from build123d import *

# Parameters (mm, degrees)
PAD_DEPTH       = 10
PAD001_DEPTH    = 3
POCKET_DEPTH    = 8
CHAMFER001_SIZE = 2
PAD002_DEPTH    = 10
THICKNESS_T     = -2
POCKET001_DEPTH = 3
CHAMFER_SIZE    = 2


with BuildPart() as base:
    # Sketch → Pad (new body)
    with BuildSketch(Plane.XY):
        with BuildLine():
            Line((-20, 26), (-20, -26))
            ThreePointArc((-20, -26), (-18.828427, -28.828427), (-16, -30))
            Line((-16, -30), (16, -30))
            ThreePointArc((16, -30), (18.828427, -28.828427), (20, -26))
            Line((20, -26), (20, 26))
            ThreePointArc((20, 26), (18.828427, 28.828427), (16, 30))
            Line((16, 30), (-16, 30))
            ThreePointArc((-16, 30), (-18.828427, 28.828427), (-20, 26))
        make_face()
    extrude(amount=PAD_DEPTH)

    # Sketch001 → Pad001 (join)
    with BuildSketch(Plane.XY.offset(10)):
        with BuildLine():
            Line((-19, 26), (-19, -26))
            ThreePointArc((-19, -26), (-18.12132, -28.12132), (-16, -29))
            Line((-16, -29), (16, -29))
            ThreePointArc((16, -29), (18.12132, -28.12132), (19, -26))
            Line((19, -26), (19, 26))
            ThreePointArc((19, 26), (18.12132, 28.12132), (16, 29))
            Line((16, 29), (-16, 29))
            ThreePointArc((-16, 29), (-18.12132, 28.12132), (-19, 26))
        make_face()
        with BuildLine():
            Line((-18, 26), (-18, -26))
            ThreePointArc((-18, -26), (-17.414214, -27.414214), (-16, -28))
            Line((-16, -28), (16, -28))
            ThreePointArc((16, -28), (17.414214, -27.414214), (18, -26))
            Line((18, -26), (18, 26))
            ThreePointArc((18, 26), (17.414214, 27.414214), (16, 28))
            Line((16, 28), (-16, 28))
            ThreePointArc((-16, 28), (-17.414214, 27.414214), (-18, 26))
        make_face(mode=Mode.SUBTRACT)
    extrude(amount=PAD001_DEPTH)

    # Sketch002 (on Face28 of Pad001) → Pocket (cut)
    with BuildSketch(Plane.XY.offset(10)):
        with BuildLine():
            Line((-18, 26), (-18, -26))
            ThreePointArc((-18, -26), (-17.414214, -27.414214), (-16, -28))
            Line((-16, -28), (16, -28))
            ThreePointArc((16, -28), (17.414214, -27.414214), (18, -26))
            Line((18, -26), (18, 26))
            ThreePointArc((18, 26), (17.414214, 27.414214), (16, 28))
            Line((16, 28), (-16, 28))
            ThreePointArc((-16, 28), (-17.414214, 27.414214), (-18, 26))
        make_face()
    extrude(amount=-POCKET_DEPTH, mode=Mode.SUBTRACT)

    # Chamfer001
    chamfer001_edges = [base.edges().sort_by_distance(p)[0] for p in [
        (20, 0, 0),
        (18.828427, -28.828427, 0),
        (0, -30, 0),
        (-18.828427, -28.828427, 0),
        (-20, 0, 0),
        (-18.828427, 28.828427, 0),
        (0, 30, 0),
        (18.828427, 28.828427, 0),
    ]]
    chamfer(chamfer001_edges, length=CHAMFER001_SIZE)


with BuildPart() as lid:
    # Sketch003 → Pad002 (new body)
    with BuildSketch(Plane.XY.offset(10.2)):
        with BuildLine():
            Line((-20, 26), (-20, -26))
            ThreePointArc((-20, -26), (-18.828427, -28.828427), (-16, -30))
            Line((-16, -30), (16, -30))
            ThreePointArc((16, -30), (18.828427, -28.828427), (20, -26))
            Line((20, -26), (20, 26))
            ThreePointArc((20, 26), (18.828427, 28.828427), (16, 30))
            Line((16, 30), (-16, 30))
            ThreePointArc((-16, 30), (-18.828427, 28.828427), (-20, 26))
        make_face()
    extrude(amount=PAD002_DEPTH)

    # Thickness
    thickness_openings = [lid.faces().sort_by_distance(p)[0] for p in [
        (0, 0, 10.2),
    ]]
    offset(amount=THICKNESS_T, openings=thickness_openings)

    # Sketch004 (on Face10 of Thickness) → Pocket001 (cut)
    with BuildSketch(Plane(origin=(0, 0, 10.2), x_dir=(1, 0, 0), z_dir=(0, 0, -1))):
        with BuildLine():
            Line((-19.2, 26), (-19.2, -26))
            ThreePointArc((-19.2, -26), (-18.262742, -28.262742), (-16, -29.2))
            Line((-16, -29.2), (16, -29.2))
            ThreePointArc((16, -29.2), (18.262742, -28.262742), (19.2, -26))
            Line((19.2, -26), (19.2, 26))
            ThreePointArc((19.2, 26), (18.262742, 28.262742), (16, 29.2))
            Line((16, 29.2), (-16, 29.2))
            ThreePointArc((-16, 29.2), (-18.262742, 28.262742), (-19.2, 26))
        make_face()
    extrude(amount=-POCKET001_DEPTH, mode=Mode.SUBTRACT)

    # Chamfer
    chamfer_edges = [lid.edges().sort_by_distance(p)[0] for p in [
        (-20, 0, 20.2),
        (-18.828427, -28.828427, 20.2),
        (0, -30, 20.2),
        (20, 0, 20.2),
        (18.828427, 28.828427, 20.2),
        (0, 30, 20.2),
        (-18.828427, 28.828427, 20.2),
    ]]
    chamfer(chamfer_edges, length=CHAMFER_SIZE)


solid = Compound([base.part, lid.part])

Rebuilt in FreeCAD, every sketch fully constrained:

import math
import FreeCAD as App
import Part
import Sketcher
from FreeCAD import Vector
Q = App.Units.Quantity


def edges_at(feature, points):
    """Names of the edges that pass closest to the given points."""
    edges = feature.Shape.Edges
    near = lambda p: min(range(len(edges)), key=lambda i: edges[i].distToShape(Part.Vertex(*p))[0])
    return sorted({f"Edge{near(p) + 1}" for p in points})


def faces_at(feature, points):
    """Names of the faces that lie closest to the given points."""
    faces = feature.Shape.Faces
    near = lambda p: min(range(len(faces)), key=lambda i: faces[i].distToShape(Part.Vertex(*p))[0])
    return sorted({f"Face{near(p) + 1}" for p in points})

doc = App.newDocument("Part")
body = doc.addObject("PartDesign::Body", "Body")

# Sketch on XY plane
sketch1 = doc.addObject("Sketcher::SketchObject", "Sketch")
body.addObject(sketch1)
sketch1.AttachmentSupport = (doc.XY_Plane, [""])
sketch1.MapMode = "FlatFace"
sketch1.addGeometry(Part.LineSegment(Vector(-20, 26, 0), Vector(-20, -26, 0)), False)
sketch1.addGeometry(Part.ArcOfCircle(Part.Circle(Vector(-16, -26, 0), Vector(0, 0, 1), 4), math.radians(-180), math.radians(-90)), False)
sketch1.addGeometry(Part.LineSegment(Vector(-16, -30, 0), Vector(16, -30, 0)), False)
sketch1.addGeometry(Part.ArcOfCircle(Part.Circle(Vector(16, -26, 0), Vector(0, 0, 1), 4), math.radians(-90), math.radians(0)), False)
sketch1.addGeometry(Part.LineSegment(Vector(20, -26, 0), Vector(20, 26, 0)), False)
sketch1.addGeometry(Part.ArcOfCircle(Part.Circle(Vector(16, 26, 0), Vector(0, 0, 1), 4), math.radians(0), math.radians(90)), False)
sketch1.addGeometry(Part.LineSegment(Vector(16, 30, 0), Vector(-16, 30, 0)), False)
sketch1.addGeometry(Part.ArcOfCircle(Part.Circle(Vector(-16, 26, 0), Vector(0, 0, 1), 4), math.radians(90), math.radians(180)), False)
sketch1.addConstraint(Sketcher.Constraint("Tangent", 0, 2, 1, 1))
sketch1.addConstraint(Sketcher.Constraint("Tangent", 1, 2, 2, 1))
sketch1.addConstraint(Sketcher.Constraint("Tangent", 2, 2, 3, 1))
sketch1.addConstraint(Sketcher.Constraint("Tangent", 3, 2, 4, 1))
sketch1.addConstraint(Sketcher.Constraint("Tangent", 4, 2, 5, 1))
sketch1.addConstraint(Sketcher.Constraint("Tangent", 5, 2, 6, 1))
sketch1.addConstraint(Sketcher.Constraint("Tangent", 6, 2, 7, 1))
sketch1.addConstraint(Sketcher.Constraint("Tangent", 7, 2, 0, 1))
sketch1.addConstraint(Sketcher.Constraint("Vertical", 0))
sketch1.addConstraint(Sketcher.Constraint("Horizontal", 2))
sketch1.addConstraint(Sketcher.Constraint("Vertical", 4))
sketch1.addConstraint(Sketcher.Constraint("Horizontal", 6))
sketch1.addConstraint(Sketcher.Constraint("Equal", 1, 3))
sketch1.addConstraint(Sketcher.Constraint("Equal", 3, 5))
sketch1.addConstraint(Sketcher.Constraint("Equal", 5, 7))
sketch1.addConstraint(Sketcher.Constraint("Symmetric", 1, 3, 5, 3, -1, 1))
sketch1.addConstraint(Sketcher.Constraint("Radius", 1, Q("4 mm")))
sketch1.addConstraint(Sketcher.Constraint("DistanceX", 2, 1, 2, 2, Q("32 mm")))
sketch1.addConstraint(Sketcher.Constraint("DistanceY", 0, 2, 0, 1, Q("52 mm")))
pad1 = doc.addObject("PartDesign::Pad", "Pad")
body.addObject(pad1)
pad1.Profile = sketch1
pad1.Length = 10

# Sketch on XY plane
sketch2 = doc.addObject("Sketcher::SketchObject", "Sketch001")
body.addObject(sketch2)
sketch2.AttachmentSupport = (doc.XY_Plane, [""])
sketch2.MapMode = "FlatFace"
sketch2.AttachmentOffset = App.Placement(Vector(0, 0, 10), App.Rotation())
sketch2.addGeometry(Part.LineSegment(Vector(-19, 26, 0), Vector(-19, -26, 0)), False)
sketch2.addGeometry(Part.ArcOfCircle(Part.Circle(Vector(-16, -26, 0), Vector(0, 0, 1), 3), math.radians(-180), math.radians(-90)), False)
sketch2.addGeometry(Part.LineSegment(Vector(-16, -29, 0), Vector(16, -29, 0)), False)
sketch2.addGeometry(Part.ArcOfCircle(Part.Circle(Vector(16, -26, 0), Vector(0, 0, 1), 3), math.radians(-90), math.radians(0)), False)
sketch2.addGeometry(Part.LineSegment(Vector(19, -26, 0), Vector(19, 26, 0)), False)
sketch2.addGeometry(Part.ArcOfCircle(Part.Circle(Vector(16, 26, 0), Vector(0, 0, 1), 3), math.radians(0), math.radians(90)), False)
sketch2.addGeometry(Part.LineSegment(Vector(16, 29, 0), Vector(-16, 29, 0)), False)
sketch2.addGeometry(Part.ArcOfCircle(Part.Circle(Vector(-16, 26, 0), Vector(0, 0, 1), 3), math.radians(90), math.radians(180)), False)
sketch2.addGeometry(Part.LineSegment(Vector(-18, -26, 0), Vector(-18, 26, 0)), False)
sketch2.addGeometry(Part.ArcOfCircle(Part.Circle(Vector(-16, 26, 0), Vector(0, 0, 1), 2), math.radians(90), math.radians(180)), False)
sketch2.addGeometry(Part.LineSegment(Vector(-16, 28, 0), Vector(16, 28, 0)), False)
sketch2.addGeometry(Part.ArcOfCircle(Part.Circle(Vector(16, 26, 0), Vector(0, 0, 1), 2), math.radians(0), math.radians(90)), False)
sketch2.addGeometry(Part.LineSegment(Vector(18, 26, 0), Vector(18, -26, 0)), False)
sketch2.addGeometry(Part.ArcOfCircle(Part.Circle(Vector(16, -26, 0), Vector(0, 0, 1), 2), math.radians(-90), math.radians(0)), False)
sketch2.addGeometry(Part.LineSegment(Vector(16, -28, 0), Vector(-16, -28, 0)), False)
sketch2.addGeometry(Part.ArcOfCircle(Part.Circle(Vector(-16, -26, 0), Vector(0, 0, 1), 2), math.radians(180), math.radians(270)), False)
sketch2.addConstraint(Sketcher.Constraint("Tangent", 0, 2, 1, 1))
sketch2.addConstraint(Sketcher.Constraint("Tangent", 1, 2, 2, 1))
sketch2.addConstraint(Sketcher.Constraint("Tangent", 2, 2, 3, 1))
sketch2.addConstraint(Sketcher.Constraint("Tangent", 3, 2, 4, 1))
sketch2.addConstraint(Sketcher.Constraint("Tangent", 4, 2, 5, 1))
sketch2.addConstraint(Sketcher.Constraint("Tangent", 5, 2, 6, 1))
sketch2.addConstraint(Sketcher.Constraint("Tangent", 6, 2, 7, 1))
sketch2.addConstraint(Sketcher.Constraint("Tangent", 7, 2, 0, 1))
sketch2.addConstraint(Sketcher.Constraint("Tangent", 8, 2, 9, 2))
sketch2.addConstraint(Sketcher.Constraint("Tangent", 9, 1, 10, 1))
sketch2.addConstraint(Sketcher.Constraint("Tangent", 10, 2, 11, 2))
sketch2.addConstraint(Sketcher.Constraint("Tangent", 11, 1, 12, 1))
sketch2.addConstraint(Sketcher.Constraint("Tangent", 12, 2, 13, 2))
sketch2.addConstraint(Sketcher.Constraint("Tangent", 13, 1, 14, 1))
sketch2.addConstraint(Sketcher.Constraint("Tangent", 14, 2, 15, 2))
sketch2.addConstraint(Sketcher.Constraint("Tangent", 15, 1, 8, 1))
sketch2.addConstraint(Sketcher.Constraint("Vertical", 0))
sketch2.addConstraint(Sketcher.Constraint("Horizontal", 2))
sketch2.addConstraint(Sketcher.Constraint("Vertical", 4))
sketch2.addConstraint(Sketcher.Constraint("Horizontal", 6))
sketch2.addConstraint(Sketcher.Constraint("Vertical", 8))
sketch2.addConstraint(Sketcher.Constraint("Horizontal", 10))
sketch2.addConstraint(Sketcher.Constraint("Vertical", 12))
sketch2.addConstraint(Sketcher.Constraint("Horizontal", 14))
sketch2.addConstraint(Sketcher.Constraint("Coincident", 9, 3, 7, 3))
sketch2.addConstraint(Sketcher.Constraint("Coincident", 11, 3, 5, 3))
sketch2.addConstraint(Sketcher.Constraint("Coincident", 13, 3, 3, 3))
sketch2.addConstraint(Sketcher.Constraint("Equal", 1, 3))
sketch2.addConstraint(Sketcher.Constraint("Equal", 3, 5))
sketch2.addConstraint(Sketcher.Constraint("Equal", 5, 7))
sketch2.addConstraint(Sketcher.Constraint("Equal", 13, 15))
sketch2.addConstraint(Sketcher.Constraint("Symmetric", 1, 3, 5, 3, -1, 1))
sketch2.addConstraint(Sketcher.Constraint("Radius", 1, Q("3.000001 mm")))
sketch2.addConstraint(Sketcher.Constraint("Radius", 9, Q("1.999999 mm")))
sketch2.addConstraint(Sketcher.Constraint("DistanceX", 2, 1, 2, 2, Q("32 mm")))
sketch2.addConstraint(Sketcher.Constraint("DistanceY", 0, 2, 0, 1, Q("52 mm")))
pad2 = doc.addObject("PartDesign::Pad", "Pad001")
body.addObject(pad2)
pad2.Profile = sketch2
pad2.Length = 3

# Sketch on XY plane
sketch3 = doc.addObject("Sketcher::SketchObject", "Sketch002")
body.addObject(sketch3)
sketch3.AttachmentSupport = (doc.XY_Plane, [""])
sketch3.MapMode = "FlatFace"
sketch3.AttachmentOffset = App.Placement(Vector(0, 0, 10), App.Rotation())
sketch3.addGeometry(Part.LineSegment(Vector(-18, 26, 0), Vector(-18, -26, 0)), False)
sketch3.addGeometry(Part.ArcOfCircle(Part.Circle(Vector(-16, -26, 0), Vector(0, 0, 1), 2), math.radians(180), math.radians(270)), False)
sketch3.addGeometry(Part.LineSegment(Vector(-16, -28, 0), Vector(16, -28, 0)), False)
sketch3.addGeometry(Part.ArcOfCircle(Part.Circle(Vector(16, -26, 0), Vector(0, 0, 1), 2), math.radians(-90), math.radians(0)), False)
sketch3.addGeometry(Part.LineSegment(Vector(18, -26, 0), Vector(18, 26, 0)), False)
sketch3.addGeometry(Part.ArcOfCircle(Part.Circle(Vector(16, 26, 0), Vector(0, 0, 1), 2), math.radians(0), math.radians(90)), False)
sketch3.addGeometry(Part.LineSegment(Vector(16, 28, 0), Vector(-16, 28, 0)), False)
sketch3.addGeometry(Part.ArcOfCircle(Part.Circle(Vector(-16, 26, 0), Vector(0, 0, 1), 2), math.radians(90), math.radians(180)), False)
sketch3.addConstraint(Sketcher.Constraint("Tangent", 0, 2, 1, 1))
sketch3.addConstraint(Sketcher.Constraint("Tangent", 1, 2, 2, 1))
sketch3.addConstraint(Sketcher.Constraint("Tangent", 2, 2, 3, 1))
sketch3.addConstraint(Sketcher.Constraint("Tangent", 3, 2, 4, 1))
sketch3.addConstraint(Sketcher.Constraint("Tangent", 4, 2, 5, 1))
sketch3.addConstraint(Sketcher.Constraint("Tangent", 5, 2, 6, 1))
sketch3.addConstraint(Sketcher.Constraint("Tangent", 6, 2, 7, 1))
sketch3.addConstraint(Sketcher.Constraint("Tangent", 7, 2, 0, 1))
sketch3.addConstraint(Sketcher.Constraint("Vertical", 0))
sketch3.addConstraint(Sketcher.Constraint("Horizontal", 2))
sketch3.addConstraint(Sketcher.Constraint("Vertical", 4))
sketch3.addConstraint(Sketcher.Constraint("Horizontal", 6))
sketch3.addConstraint(Sketcher.Constraint("Equal", 1, 3))
sketch3.addConstraint(Sketcher.Constraint("Equal", 3, 5))
sketch3.addConstraint(Sketcher.Constraint("Equal", 5, 7))
sketch3.addConstraint(Sketcher.Constraint("Symmetric", 1, 3, 5, 3, -1, 1))
sketch3.addConstraint(Sketcher.Constraint("Radius", 1, Q("1.999999 mm")))
sketch3.addConstraint(Sketcher.Constraint("DistanceX", 2, 1, 2, 2, Q("32 mm")))
sketch3.addConstraint(Sketcher.Constraint("DistanceY", 0, 2, 0, 1, Q("52 mm")))
pocket1 = doc.addObject("PartDesign::Pocket", "Pocket")
body.addObject(pocket1)
pocket1.Profile = sketch3
pocket1.Length = 8
doc.recompute()

chamfer = doc.addObject("PartDesign::Chamfer", "Chamfer")
body.addObject(chamfer)
chamfer.Base = (pocket1, edges_at(pocket1, [
    (20, 0, 0),
    (18.828, -28.828, 0),
    (0, -30, 0),
    (-18.828, -28.828, 0),
    (-20, 0, 0),
    (-18.828, 28.828, 0),
    (0, 30, 0),
    (18.828, 28.828, 0),
]))
chamfer.Size = 2
body2 = doc.addObject("PartDesign::Body", "Body001")

# Sketch on XY plane
sketch4 = doc.addObject("Sketcher::SketchObject", "Sketch003")
body2.addObject(sketch4)
sketch4.AttachmentSupport = (doc.getObject("XY_Plane001"), [""])
sketch4.MapMode = "FlatFace"
sketch4.AttachmentOffset = App.Placement(Vector(0, 0, 10.2), App.Rotation())
sketch4.addGeometry(Part.LineSegment(Vector(-20, 26, 0), Vector(-20, -26, 0)), False)
sketch4.addGeometry(Part.ArcOfCircle(Part.Circle(Vector(-16, -26, 0), Vector(0, 0, 1), 4), math.radians(-180), math.radians(-90)), False)
sketch4.addGeometry(Part.LineSegment(Vector(-16, -30, 0), Vector(16, -30, 0)), False)
sketch4.addGeometry(Part.ArcOfCircle(Part.Circle(Vector(16, -26, 0), Vector(0, 0, 1), 4), math.radians(-90), math.radians(0)), False)
sketch4.addGeometry(Part.LineSegment(Vector(20, -26, 0), Vector(20, 26, 0)), False)
sketch4.addGeometry(Part.ArcOfCircle(Part.Circle(Vector(16, 26, 0), Vector(0, 0, 1), 4), math.radians(0), math.radians(90)), False)
sketch4.addGeometry(Part.LineSegment(Vector(16, 30, 0), Vector(-16, 30, 0)), False)
sketch4.addGeometry(Part.ArcOfCircle(Part.Circle(Vector(-16, 26, 0), Vector(0, 0, 1), 4), math.radians(90), math.radians(180)), False)
sketch4.addConstraint(Sketcher.Constraint("Tangent", 0, 2, 1, 1))
sketch4.addConstraint(Sketcher.Constraint("Tangent", 1, 2, 2, 1))
sketch4.addConstraint(Sketcher.Constraint("Tangent", 2, 2, 3, 1))
sketch4.addConstraint(Sketcher.Constraint("Tangent", 3, 2, 4, 1))
sketch4.addConstraint(Sketcher.Constraint("Tangent", 4, 2, 5, 1))
sketch4.addConstraint(Sketcher.Constraint("Tangent", 5, 2, 6, 1))
sketch4.addConstraint(Sketcher.Constraint("Tangent", 6, 2, 7, 1))
sketch4.addConstraint(Sketcher.Constraint("Tangent", 7, 2, 0, 1))
sketch4.addConstraint(Sketcher.Constraint("Vertical", 0))
sketch4.addConstraint(Sketcher.Constraint("Horizontal", 2))
sketch4.addConstraint(Sketcher.Constraint("Vertical", 4))
sketch4.addConstraint(Sketcher.Constraint("Horizontal", 6))
sketch4.addConstraint(Sketcher.Constraint("Equal", 1, 3))
sketch4.addConstraint(Sketcher.Constraint("Equal", 3, 5))
sketch4.addConstraint(Sketcher.Constraint("Equal", 5, 7))
sketch4.addConstraint(Sketcher.Constraint("Symmetric", 1, 3, 5, 3, -1, 1))
sketch4.addConstraint(Sketcher.Constraint("Radius", 1, Q("4 mm")))
sketch4.addConstraint(Sketcher.Constraint("DistanceX", 2, 1, 2, 2, Q("32 mm")))
sketch4.addConstraint(Sketcher.Constraint("DistanceY", 0, 2, 0, 1, Q("52 mm")))
pad3 = doc.addObject("PartDesign::Pad", "Pad002")
body2.addObject(pad3)
pad3.Profile = sketch4
pad3.Length = 10
doc.recompute()

thickness = doc.addObject("PartDesign::Thickness", "Thickness")
body2.addObject(thickness)
thickness.Base = (pad3, faces_at(pad3, [(0, 0, 10.2)]))
thickness.Value = 2
thickness.Reversed = True
thickness.Join = "Arc"

# Sketch on XY plane
sketch5 = doc.addObject("Sketcher::SketchObject", "Sketch004")
body2.addObject(sketch5)
sketch5.AttachmentSupport = (doc.getObject("XY_Plane001"), [""])
sketch5.MapMode = "FlatFace"
sketch5.AttachmentOffset = App.Placement(Vector(0, 0, 10.2), App.Rotation())
sketch5.addGeometry(Part.LineSegment(Vector(-19.2, -26, 0), Vector(-19.2, 26, 0)), False)
sketch5.addGeometry(Part.ArcOfCircle(Part.Circle(Vector(-16, 26, 0), Vector(0, 0, 1), 3.2), math.radians(90), math.radians(180)), False)
sketch5.addGeometry(Part.LineSegment(Vector(-16, 29.2, 0), Vector(16, 29.2, 0)), False)
sketch5.addGeometry(Part.ArcOfCircle(Part.Circle(Vector(16, 26, 0), Vector(0, 0, 1), 3.2), math.radians(0), math.radians(90)), False)
sketch5.addGeometry(Part.LineSegment(Vector(19.2, 26, 0), Vector(19.2, -26, 0)), False)
sketch5.addGeometry(Part.ArcOfCircle(Part.Circle(Vector(16, -26, 0), Vector(0, 0, 1), 3.2), math.radians(-90), math.radians(0)), False)
sketch5.addGeometry(Part.LineSegment(Vector(16, -29.2, 0), Vector(-16, -29.2, 0)), False)
sketch5.addGeometry(Part.ArcOfCircle(Part.Circle(Vector(-16, -26, 0), Vector(0, 0, 1), 3.2), math.radians(180), math.radians(270)), False)
sketch5.addConstraint(Sketcher.Constraint("Tangent", 0, 2, 1, 2))
sketch5.addConstraint(Sketcher.Constraint("Tangent", 1, 1, 2, 1))
sketch5.addConstraint(Sketcher.Constraint("Tangent", 2, 2, 3, 2))
sketch5.addConstraint(Sketcher.Constraint("Tangent", 3, 1, 4, 1))
sketch5.addConstraint(Sketcher.Constraint("Tangent", 4, 2, 5, 2))
sketch5.addConstraint(Sketcher.Constraint("Tangent", 5, 1, 6, 1))
sketch5.addConstraint(Sketcher.Constraint("Tangent", 6, 2, 7, 2))
sketch5.addConstraint(Sketcher.Constraint("Tangent", 7, 1, 0, 1))
sketch5.addConstraint(Sketcher.Constraint("Vertical", 0))
sketch5.addConstraint(Sketcher.Constraint("Horizontal", 2))
sketch5.addConstraint(Sketcher.Constraint("Vertical", 4))
sketch5.addConstraint(Sketcher.Constraint("Horizontal", 6))
sketch5.addConstraint(Sketcher.Constraint("Equal", 1, 3))
sketch5.addConstraint(Sketcher.Constraint("Equal", 3, 5))
sketch5.addConstraint(Sketcher.Constraint("Equal", 5, 7))
sketch5.addConstraint(Sketcher.Constraint("Symmetric", 1, 3, 5, 3, -1, 1))
sketch5.addConstraint(Sketcher.Constraint("Radius", 1, Q("3.199999 mm")))
sketch5.addConstraint(Sketcher.Constraint("DistanceX", 2, 1, 2, 2, Q("32 mm")))
sketch5.addConstraint(Sketcher.Constraint("DistanceY", 0, 1, 0, 2, Q("52 mm")))
pocket2 = doc.addObject("PartDesign::Pocket", "Pocket001")
body2.addObject(pocket2)
pocket2.Profile = sketch5
pocket2.Length = 3
pocket2.Reversed = True
doc.recompute()

chamfer2 = doc.addObject("PartDesign::Chamfer", "Chamfer001")
body2.addObject(chamfer2)
chamfer2.Base = (pocket2, edges_at(pocket2, [
    (-20, 0, 20.2),
    (-18.828, -28.828, 20.2),
    (0, -30, 20.2),
    (20, 0, 20.2),
    (18.828, 28.828, 20.2),
    (0, 30, 20.2),
    (-18.828, 28.828, 20.2),
]))
chamfer2.Size = 2

doc.recompute()
